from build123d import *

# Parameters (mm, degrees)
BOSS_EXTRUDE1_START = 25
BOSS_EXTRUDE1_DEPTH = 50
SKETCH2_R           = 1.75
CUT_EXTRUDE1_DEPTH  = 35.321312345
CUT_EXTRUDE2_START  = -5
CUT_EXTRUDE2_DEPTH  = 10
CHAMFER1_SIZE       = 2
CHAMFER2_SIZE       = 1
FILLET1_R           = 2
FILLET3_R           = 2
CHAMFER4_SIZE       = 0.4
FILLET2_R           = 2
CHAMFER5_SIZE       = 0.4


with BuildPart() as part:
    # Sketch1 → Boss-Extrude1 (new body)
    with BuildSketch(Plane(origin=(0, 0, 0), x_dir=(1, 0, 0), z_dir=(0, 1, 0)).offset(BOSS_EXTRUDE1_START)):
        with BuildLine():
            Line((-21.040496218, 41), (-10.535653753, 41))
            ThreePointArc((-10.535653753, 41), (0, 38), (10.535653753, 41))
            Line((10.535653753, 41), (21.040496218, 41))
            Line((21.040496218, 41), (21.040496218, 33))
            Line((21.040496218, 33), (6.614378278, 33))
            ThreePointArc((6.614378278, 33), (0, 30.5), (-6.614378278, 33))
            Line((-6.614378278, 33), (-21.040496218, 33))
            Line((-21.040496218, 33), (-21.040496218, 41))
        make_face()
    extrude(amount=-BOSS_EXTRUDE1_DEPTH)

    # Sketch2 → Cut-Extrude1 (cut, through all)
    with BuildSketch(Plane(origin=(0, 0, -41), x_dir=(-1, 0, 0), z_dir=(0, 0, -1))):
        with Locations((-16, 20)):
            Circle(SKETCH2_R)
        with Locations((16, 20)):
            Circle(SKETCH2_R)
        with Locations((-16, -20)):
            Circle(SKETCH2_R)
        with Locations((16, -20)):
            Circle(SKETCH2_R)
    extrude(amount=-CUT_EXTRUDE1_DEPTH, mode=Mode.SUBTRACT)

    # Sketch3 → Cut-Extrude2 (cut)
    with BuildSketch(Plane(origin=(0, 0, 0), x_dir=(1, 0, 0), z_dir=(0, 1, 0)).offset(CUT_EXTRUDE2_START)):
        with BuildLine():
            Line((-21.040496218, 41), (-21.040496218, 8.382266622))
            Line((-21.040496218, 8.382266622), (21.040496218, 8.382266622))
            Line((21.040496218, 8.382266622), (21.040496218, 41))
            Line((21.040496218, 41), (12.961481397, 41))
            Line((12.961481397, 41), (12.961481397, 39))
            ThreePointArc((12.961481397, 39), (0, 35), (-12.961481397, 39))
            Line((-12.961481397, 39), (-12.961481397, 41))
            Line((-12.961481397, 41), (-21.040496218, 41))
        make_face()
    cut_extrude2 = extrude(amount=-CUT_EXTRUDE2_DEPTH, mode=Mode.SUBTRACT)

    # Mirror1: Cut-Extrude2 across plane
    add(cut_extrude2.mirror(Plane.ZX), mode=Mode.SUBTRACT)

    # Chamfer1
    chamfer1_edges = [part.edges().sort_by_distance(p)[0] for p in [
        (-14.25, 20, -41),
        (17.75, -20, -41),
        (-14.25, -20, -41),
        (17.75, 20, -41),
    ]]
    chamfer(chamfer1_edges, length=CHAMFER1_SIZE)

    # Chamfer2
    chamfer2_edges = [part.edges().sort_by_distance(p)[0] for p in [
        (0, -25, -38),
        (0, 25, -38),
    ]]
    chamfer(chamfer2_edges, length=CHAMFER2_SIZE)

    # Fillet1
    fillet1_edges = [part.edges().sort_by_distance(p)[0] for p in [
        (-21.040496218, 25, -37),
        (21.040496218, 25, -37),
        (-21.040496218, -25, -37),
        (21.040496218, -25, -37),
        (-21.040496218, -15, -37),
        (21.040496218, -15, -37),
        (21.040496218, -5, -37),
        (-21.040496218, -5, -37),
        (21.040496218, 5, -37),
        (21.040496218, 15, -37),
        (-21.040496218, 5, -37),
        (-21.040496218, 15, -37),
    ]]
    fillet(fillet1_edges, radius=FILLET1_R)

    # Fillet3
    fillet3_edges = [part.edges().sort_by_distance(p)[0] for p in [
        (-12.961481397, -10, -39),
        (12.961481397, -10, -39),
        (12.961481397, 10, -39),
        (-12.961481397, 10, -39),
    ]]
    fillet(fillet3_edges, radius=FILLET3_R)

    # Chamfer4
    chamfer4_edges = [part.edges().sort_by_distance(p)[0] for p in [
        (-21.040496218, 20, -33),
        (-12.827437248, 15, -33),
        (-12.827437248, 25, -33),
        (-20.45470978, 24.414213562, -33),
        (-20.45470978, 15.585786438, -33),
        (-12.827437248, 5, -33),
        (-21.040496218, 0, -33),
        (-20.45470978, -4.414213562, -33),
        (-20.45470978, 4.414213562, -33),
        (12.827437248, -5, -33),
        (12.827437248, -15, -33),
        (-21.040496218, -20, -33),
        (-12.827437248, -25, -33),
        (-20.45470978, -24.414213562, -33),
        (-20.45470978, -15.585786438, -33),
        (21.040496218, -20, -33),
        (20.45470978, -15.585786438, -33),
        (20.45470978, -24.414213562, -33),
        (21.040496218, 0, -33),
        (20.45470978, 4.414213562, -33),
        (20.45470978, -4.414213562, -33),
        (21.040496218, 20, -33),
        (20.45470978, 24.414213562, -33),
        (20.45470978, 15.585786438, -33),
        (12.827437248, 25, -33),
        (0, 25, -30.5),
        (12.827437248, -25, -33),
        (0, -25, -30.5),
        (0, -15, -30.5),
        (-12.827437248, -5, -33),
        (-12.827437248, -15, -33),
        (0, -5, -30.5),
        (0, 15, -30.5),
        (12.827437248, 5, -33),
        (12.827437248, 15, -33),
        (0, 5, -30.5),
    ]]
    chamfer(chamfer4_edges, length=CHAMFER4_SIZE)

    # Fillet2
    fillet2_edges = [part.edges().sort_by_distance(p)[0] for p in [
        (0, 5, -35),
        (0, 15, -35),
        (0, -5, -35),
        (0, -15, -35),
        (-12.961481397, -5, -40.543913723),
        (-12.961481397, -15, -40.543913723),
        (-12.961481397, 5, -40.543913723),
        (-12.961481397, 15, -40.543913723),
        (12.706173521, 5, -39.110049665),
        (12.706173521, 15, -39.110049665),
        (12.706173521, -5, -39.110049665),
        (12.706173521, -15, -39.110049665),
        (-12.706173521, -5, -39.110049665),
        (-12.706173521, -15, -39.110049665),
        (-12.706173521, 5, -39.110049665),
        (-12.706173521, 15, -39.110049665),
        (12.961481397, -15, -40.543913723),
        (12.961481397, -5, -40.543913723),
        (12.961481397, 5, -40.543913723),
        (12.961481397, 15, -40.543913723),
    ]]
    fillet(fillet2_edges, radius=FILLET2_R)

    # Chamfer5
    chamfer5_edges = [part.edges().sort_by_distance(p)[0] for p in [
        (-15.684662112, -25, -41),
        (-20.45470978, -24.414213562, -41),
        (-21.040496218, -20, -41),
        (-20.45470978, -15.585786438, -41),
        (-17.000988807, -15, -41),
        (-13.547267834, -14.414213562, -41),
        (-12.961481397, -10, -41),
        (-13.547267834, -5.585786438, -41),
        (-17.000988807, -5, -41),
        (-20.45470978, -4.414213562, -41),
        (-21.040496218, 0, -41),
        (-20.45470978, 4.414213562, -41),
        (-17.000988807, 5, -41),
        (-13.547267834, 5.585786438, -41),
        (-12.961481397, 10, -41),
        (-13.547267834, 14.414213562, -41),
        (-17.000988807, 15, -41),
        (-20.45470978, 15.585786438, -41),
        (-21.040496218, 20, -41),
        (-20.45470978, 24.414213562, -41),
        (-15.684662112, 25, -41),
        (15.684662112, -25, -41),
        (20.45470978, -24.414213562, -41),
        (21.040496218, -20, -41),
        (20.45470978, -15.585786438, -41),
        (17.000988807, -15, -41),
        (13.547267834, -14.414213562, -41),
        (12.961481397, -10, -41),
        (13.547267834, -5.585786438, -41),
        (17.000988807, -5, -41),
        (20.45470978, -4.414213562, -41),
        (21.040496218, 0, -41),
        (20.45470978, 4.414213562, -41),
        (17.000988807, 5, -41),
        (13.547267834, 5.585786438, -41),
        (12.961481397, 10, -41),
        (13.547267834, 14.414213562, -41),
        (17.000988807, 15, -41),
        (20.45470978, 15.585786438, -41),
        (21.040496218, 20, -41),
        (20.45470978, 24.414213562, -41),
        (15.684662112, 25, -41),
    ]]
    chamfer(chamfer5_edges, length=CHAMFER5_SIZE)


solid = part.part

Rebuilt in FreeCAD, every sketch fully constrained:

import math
import FreeCAD as App
import Part
import Sketcher

V = App.Vector
Q = App.Units.Quantity


def edges_at(feature, points):
    """Names of the edges that pass closest to the given points."""
    edges = feature.Shape.Edges
    near = lambda p: min(range(len(edges)), key=lambda i: edges[i].distToShape(Part.Vertex(*p))[0])
    return sorted({f"Edge{near(p) + 1}" for p in points})

doc = App.newDocument("Part")
body = doc.addObject("PartDesign::Body", "Body")

# Sketch on XZ plane
sketch1 = body.newObject("Sketcher::SketchObject", "Sketch")
sketch1.AttachmentSupport = (doc.getObject("XZ_Plane"), [""])
sketch1.MapMode = "FlatFace"
sketch1.AttachmentOffset = App.Placement(V(0, 0, -25), App.Rotation())
sketch1.addGeometry([
    Part.LineSegment(V(-10.535654, -41, 0), V(-21.040496, -41, 0)),  # 0
    Part.LineSegment(V(-21.040496, -41, 0), V(-21.040496, -33, 0)),  # 1
    Part.LineSegment(V(-21.040496, -33, 0), V(-6.614378, -33, 0)),  # 2
    Part.ArcOfCircle(Part.Circle(V(0, -40.5, 0), V(0, 0, 1), 10), math.radians(48.590378), math.radians(131.409622)),  # 3
    Part.LineSegment(V(6.614378, -33, 0), V(21.040496, -33, 0)),  # 4
    Part.LineSegment(V(21.040496, -33, 0), V(21.040496, -41, 0)),  # 5
    Part.LineSegment(V(21.040496, -41, 0), V(10.535654, -41, 0)),  # 6
    Part.ArcOfCircle(Part.Circle(V(0, -58, 0), V(0, 0, 1), 20), math.radians(58.211669), math.radians(121.788331)),  # 7
], False)
sketch1.addConstraint([
    Sketcher.Constraint("Coincident", 0, 2, 1, 1),
    Sketcher.Constraint("Coincident", 1, 2, 2, 1),
    Sketcher.Constraint("Coincident", 2, 2, 3, 2),
    Sketcher.Constraint("Coincident", 3, 1, 4, 1),
    Sketcher.Constraint("Coincident", 4, 2, 5, 1),
    Sketcher.Constraint("Coincident", 5, 2, 6, 1),
    Sketcher.Constraint("Coincident", 6, 2, 7, 1),
    Sketcher.Constraint("Coincident", 7, 2, 0, 1),
    Sketcher.Constraint("Horizontal", 0),
    Sketcher.Constraint("Vertical", 1),
    Sketcher.Constraint("Horizontal", 2),
    Sketcher.Constraint("Horizontal", 4),
    Sketcher.Constraint("Vertical", 5),
    Sketcher.Constraint("Horizontal", 6),
    Sketcher.Constraint("Symmetric", 2, 2, 3, 1, -2),
    Sketcher.Constraint("Symmetric", 0, 2, 5, 2, -2),
    Sketcher.Constraint("PointOnObject", 7, 3, -2),
    Sketcher.Constraint("Radius", 3, Q("10 mm")),
    Sketcher.Constraint("Radius", 7, Q("20 mm")),
    Sketcher.Constraint("DistanceY", 1, 1, 1, 2, Q("8 mm")),
    Sketcher.Constraint("DistanceY", 7, 3, -1, 1, Q("58 mm")),
    Sketcher.Constraint("DistanceY", 0, 2, -1, 1, Q("41 mm")),
    Sketcher.Constraint("DistanceY", 3, 3, -1, 1, Q("40.5 mm")),
    Sketcher.Constraint("DistanceX", 0, 2, 0, 1, Q("10.504842 mm")),
])
pad1 = body.newObject("PartDesign::Pad", "Pad")
pad1.Profile = sketch1
pad1.Length = 50

# Sketch on XY plane
sketch2 = body.newObject("Sketcher::SketchObject", "Sketch001")
sketch2.AttachmentSupport = (doc.getObject("XY_Plane"), [""])
sketch2.MapMode = "FlatFace"
sketch2.AttachmentOffset = App.Placement(V(0, 0, -41), App.Rotation())
sketch2.addGeometry([
    Part.Circle(V(16, 20, 0), V(0, 0, 1), 1.75),
    Part.Circle(V(-16, 20, 0), V(0, 0, 1), 1.75),
    Part.Circle(V(16, -20, 0), V(0, 0, 1), 1.75),
    Part.Circle(V(-16, -20, 0), V(0, 0, 1), 1.75),
], False)
sketch2.addConstraint([
    Sketcher.Constraint("Equal", 0, 1),
    Sketcher.Constraint("Equal", 1, 2),
    Sketcher.Constraint("Equal", 2, 3),
    Sketcher.Constraint("Symmetric", 1, 3, 2, 3, -1, 1),
    Sketcher.Constraint("Symmetric", 0, 3, 3, 3, -1, 1),
    Sketcher.Constraint("Symmetric", 0, 3, 1, 3, -2),
    Sketcher.Constraint("Diameter", 0, Q("3.5 mm")),
    Sketcher.Constraint("DistanceX", -1, 1, 0, 3, Q("16 mm")),
    Sketcher.Constraint("DistanceY", -1, 1, 0, 3, Q("20 mm")),
])
pocket1 = body.newObject("PartDesign::Pocket", "Pocket")
pocket1.Profile = sketch2
pocket1.Type = "ThroughAll"
pocket1.Reversed = True

# Sketch on XZ plane
sketch3 = body.newObject("Sketcher::SketchObject", "Sketch002")
sketch3.AttachmentSupport = (doc.getObject("XZ_Plane"), [""])
sketch3.MapMode = "FlatFace"
sketch3.AttachmentOffset = App.Placement(V(0, 0, 5), App.Rotation())
sketch3.addGeometry([
    Part.LineSegment(V(-21.040496, -41, 0), V(-21.040496, -8.382267, 0)),  # 0
    Part.LineSegment(V(-21.040496, -8.382267, 0), V(21.040496, -8.382267, 0)),  # 1
    Part.LineSegment(V(21.040496, -8.382267, 0), V(21.040496, -41, 0)),  # 2
    Part.LineSegment(V(21.040496, -41, 0), V(12.961481, -41, 0)),  # 3
    Part.LineSegment(V(12.961481, -41, 0), V(12.961481, -39, 0)),  # 4
    Part.ArcOfCircle(Part.Circle(V(0, -58, 0), V(0, 0, 1), 23), math.radians(55.698847), math.radians(124.301153)),  # 5
    Part.LineSegment(V(-12.961481, -39, 0), V(-12.961481, -41, 0)),  # 6
    Part.LineSegment(V(-12.961481, -41, 0), V(-21.040496, -41, 0)),  # 7
], False)
sketch3.addConstraint([
    Sketcher.Constraint("Coincident", 0, 2, 1, 1),
    Sketcher.Constraint("Coincident", 1, 2, 2, 1),
    Sketcher.Constraint("Coincident", 2, 2, 3, 1),
    Sketcher.Constraint("Coincident", 3, 2, 4, 1),
    Sketcher.Constraint("Coincident", 4, 2, 5, 1),
    Sketcher.Constraint("Coincident", 5, 2, 6, 1),
    Sketcher.Constraint("Coincident", 6, 2, 7, 1),
    Sketcher.Constraint("Coincident", 7, 2, 0, 1),
    Sketcher.Constraint("Vertical", 0),
    Sketcher.Constraint("Horizontal", 1),
    Sketcher.Constraint("Vertical", 2),
    Sketcher.Constraint("Horizontal", 3),
    Sketcher.Constraint("Vertical", 4),
    Sketcher.Constraint("Vertical", 6),
    Sketcher.Constraint("Horizontal", 7),
    Sketcher.Constraint("Symmetric", 4, 2, 5, 2, -2),
    Sketcher.Constraint("Symmetric", 2, 2, 7, 2, -2),
    Sketcher.Constraint("Radius", 5, Q("23 mm")),
    Sketcher.Constraint("DistanceY", 4, 1, 4, 2, Q("2 mm")),
    Sketcher.Constraint("DistanceY", 5, 3, -1, 1, Q("58 mm")),
    Sketcher.Constraint("DistanceY", 2, 2, -1, 1, Q("41 mm")),
    Sketcher.Constraint("DistanceX", 1, 1, 1, 2, Q("42.080992 mm")),
    Sketcher.Constraint("DistanceY", 0, 1, 0, 2, Q("32.617733 mm")),
])
pocket2 = body.newObject("PartDesign::Pocket", "Pocket001")
pocket2.Profile = sketch3
pocket2.Length = 10
pocket2.Reversed = True
doc.recompute()

mirrored = body.newObject("PartDesign::Mirrored", "Mirrored")
mirrored.Originals = [pocket2]
mirrored.MirrorPlane = (doc.getObject("XZ_Plane"), [""])
body.Tip = mirrored
doc.recompute()

chamfer = body.newObject("PartDesign::Chamfer", "Chamfer")
chamfer.Base = (mirrored, edges_at(mirrored, [
    (-14.25, 20, -41),
    (17.75, -20, -41),
    (-14.25, -20, -41),
    (17.75, 20, -41),
]))
chamfer.Size = 2
doc.recompute()

chamfer2 = body.newObject("PartDesign::Chamfer", "Chamfer001")
chamfer2.Base = (chamfer, edges_at(chamfer, [(0, -25, -38), (0, 25, -38)]))
chamfer2.Size = 1
doc.recompute()

fillet = body.newObject("PartDesign::Fillet", "Fillet")
fillet.Base = (chamfer2, edges_at(chamfer2, [
    (-21.04, 25, -37),
    (21.04, 25, -37),
    (-21.04, -25, -37),
    (21.04, -25, -37),
    (-21.04, -15, -37),
    (21.04, -15, -37),
    (21.04, -5, -37),
    (-21.04, -5, -37),
    (21.04, 5, -37),
    (21.04, 15, -37),
    (-21.04, 5, -37),
    (-21.04, 15, -37),
]))
fillet.Radius = 2
doc.recompute()

fillet2 = body.newObject("PartDesign::Fillet", "Fillet001")
fillet2.Base = (fillet, edges_at(fillet, [
    (-12.961, -10, -39),
    (12.961, -10, -39),
    (12.961, 10, -39),
    (-12.961, 10, -39),
]))
fillet2.Radius = 2
doc.recompute()

chamfer3 = body.newObject("PartDesign::Chamfer", "Chamfer002")
chamfer3.Base = (fillet2, edges_at(fillet2, [
    (-21.04, 20, -33),
    (-12.827, 15, -33),
    (-12.827, 25, -33),
    (-20.455, 24.414, -33),
    (-20.455, 15.586, -33),
    (-12.827, 5, -33),
    (-21.04, 0, -33),
    (-20.455, -4.414, -33),
    (-20.455, 4.414, -33),
    (12.827, -5, -33),
    (12.827, -15, -33),
    (-21.04, -20, -33),
    (-12.827, -25, -33),
    (-20.455, -24.414, -33),
    (-20.455, -15.586, -33),
    (21.04, -20, -33),
    (20.455, -15.586, -33),
    (20.455, -24.414, -33),
    (21.04, 0, -33),
    (20.455, 4.414, -33),
    (20.455, -4.414, -33),
    (21.04, 20, -33),
    (20.455, 24.414, -33),
    (20.455, 15.586, -33),
    (12.827, 25, -33),
    (0, 25, -30.5),
    (12.827, -25, -33),
    (0, -25, -30.5),
    (0, -15, -30.5),
    (-12.827, -5, -33),
    (-12.827, -15, -33),
    (0, -5, -30.5),
    (0, 15, -30.5),
    (12.827, 5, -33),
    (12.827, 15, -33),
    (0, 5, -30.5),
]))
chamfer3.Size = 0.4
doc.recompute()

fillet3 = body.newObject("PartDesign::Fillet", "Fillet002")
fillet3.Base = (chamfer3, edges_at(chamfer3, [
    (0, 5, -35),
    (0, 15, -35),
    (0, -5, -35),
    (0, -15, -35),
    (-12.961, -5, -40.544),
    (-12.961, -15, -40.544),
    (-12.961, 5, -40.544),
    (-12.961, 15, -40.544),
    (12.706, 5, -39.11),
    (12.706, 15, -39.11),
    (12.706, -5, -39.11),
    (12.706, -15, -39.11),
    (-12.706, -5, -39.11),
    (-12.706, -15, -39.11),
    (-12.706, 5, -39.11),
    (-12.706, 15, -39.11),
    (12.961, -15, -40.544),
    (12.961, -5, -40.544),
    (12.961, 5, -40.544),
    (12.961, 15, -40.544),
]))
fillet3.Radius = 2
doc.recompute()

chamfer4 = body.newObject("PartDesign::Chamfer", "Chamfer003")
chamfer4.Base = (fillet3, edges_at(fillet3, [
    (-15.685, -25, -41),
    (-20.455, -24.414, -41),
    (-21.04, -20, -41),
    (-20.455, -15.586, -41),
    (-17.001, -15, -41),
    (-13.547, -14.414, -41),
    (-12.961, -10, -41),
    (-13.547, -5.586, -41),
    (-17.001, -5, -41),
    (-20.455, -4.414, -41),
    (-21.04, 0, -41),
    (-20.455, 4.414, -41),
    (-17.001, 5, -41),
    (-13.547, 5.586, -41),
    (-12.961, 10, -41),
    (-13.547, 14.414, -41),
    (-17.001, 15, -41),
    (-20.455, 15.586, -41),
    (-21.04, 20, -41),
    (-20.455, 24.414, -41),
    (-15.685, 25, -41),
    (15.685, -25, -41),
    (20.455, -24.414, -41),
    (21.04, -20, -41),
    (20.455, -15.586, -41),
    (17.001, -15, -41),
    (13.547, -14.414, -41),
    (12.961, -10, -41),
    (13.547, -5.586, -41),
    (17.001, -5, -41),
    (20.455, -4.414, -41),
    (21.04, 0, -41),
    (20.455, 4.414, -41),
    (17.001, 5, -41),
    (13.547, 5.586, -41),
    (12.961, 10, -41),
    (13.547, 14.414, -41),
    (17.001, 15, -41),
    (20.455, 15.586, -41),
    (21.04, 20, -41),
    (20.455, 24.414, -41),
    (15.685, 25, -41),
]))
chamfer4.Size = 0.4

doc.recompute()
